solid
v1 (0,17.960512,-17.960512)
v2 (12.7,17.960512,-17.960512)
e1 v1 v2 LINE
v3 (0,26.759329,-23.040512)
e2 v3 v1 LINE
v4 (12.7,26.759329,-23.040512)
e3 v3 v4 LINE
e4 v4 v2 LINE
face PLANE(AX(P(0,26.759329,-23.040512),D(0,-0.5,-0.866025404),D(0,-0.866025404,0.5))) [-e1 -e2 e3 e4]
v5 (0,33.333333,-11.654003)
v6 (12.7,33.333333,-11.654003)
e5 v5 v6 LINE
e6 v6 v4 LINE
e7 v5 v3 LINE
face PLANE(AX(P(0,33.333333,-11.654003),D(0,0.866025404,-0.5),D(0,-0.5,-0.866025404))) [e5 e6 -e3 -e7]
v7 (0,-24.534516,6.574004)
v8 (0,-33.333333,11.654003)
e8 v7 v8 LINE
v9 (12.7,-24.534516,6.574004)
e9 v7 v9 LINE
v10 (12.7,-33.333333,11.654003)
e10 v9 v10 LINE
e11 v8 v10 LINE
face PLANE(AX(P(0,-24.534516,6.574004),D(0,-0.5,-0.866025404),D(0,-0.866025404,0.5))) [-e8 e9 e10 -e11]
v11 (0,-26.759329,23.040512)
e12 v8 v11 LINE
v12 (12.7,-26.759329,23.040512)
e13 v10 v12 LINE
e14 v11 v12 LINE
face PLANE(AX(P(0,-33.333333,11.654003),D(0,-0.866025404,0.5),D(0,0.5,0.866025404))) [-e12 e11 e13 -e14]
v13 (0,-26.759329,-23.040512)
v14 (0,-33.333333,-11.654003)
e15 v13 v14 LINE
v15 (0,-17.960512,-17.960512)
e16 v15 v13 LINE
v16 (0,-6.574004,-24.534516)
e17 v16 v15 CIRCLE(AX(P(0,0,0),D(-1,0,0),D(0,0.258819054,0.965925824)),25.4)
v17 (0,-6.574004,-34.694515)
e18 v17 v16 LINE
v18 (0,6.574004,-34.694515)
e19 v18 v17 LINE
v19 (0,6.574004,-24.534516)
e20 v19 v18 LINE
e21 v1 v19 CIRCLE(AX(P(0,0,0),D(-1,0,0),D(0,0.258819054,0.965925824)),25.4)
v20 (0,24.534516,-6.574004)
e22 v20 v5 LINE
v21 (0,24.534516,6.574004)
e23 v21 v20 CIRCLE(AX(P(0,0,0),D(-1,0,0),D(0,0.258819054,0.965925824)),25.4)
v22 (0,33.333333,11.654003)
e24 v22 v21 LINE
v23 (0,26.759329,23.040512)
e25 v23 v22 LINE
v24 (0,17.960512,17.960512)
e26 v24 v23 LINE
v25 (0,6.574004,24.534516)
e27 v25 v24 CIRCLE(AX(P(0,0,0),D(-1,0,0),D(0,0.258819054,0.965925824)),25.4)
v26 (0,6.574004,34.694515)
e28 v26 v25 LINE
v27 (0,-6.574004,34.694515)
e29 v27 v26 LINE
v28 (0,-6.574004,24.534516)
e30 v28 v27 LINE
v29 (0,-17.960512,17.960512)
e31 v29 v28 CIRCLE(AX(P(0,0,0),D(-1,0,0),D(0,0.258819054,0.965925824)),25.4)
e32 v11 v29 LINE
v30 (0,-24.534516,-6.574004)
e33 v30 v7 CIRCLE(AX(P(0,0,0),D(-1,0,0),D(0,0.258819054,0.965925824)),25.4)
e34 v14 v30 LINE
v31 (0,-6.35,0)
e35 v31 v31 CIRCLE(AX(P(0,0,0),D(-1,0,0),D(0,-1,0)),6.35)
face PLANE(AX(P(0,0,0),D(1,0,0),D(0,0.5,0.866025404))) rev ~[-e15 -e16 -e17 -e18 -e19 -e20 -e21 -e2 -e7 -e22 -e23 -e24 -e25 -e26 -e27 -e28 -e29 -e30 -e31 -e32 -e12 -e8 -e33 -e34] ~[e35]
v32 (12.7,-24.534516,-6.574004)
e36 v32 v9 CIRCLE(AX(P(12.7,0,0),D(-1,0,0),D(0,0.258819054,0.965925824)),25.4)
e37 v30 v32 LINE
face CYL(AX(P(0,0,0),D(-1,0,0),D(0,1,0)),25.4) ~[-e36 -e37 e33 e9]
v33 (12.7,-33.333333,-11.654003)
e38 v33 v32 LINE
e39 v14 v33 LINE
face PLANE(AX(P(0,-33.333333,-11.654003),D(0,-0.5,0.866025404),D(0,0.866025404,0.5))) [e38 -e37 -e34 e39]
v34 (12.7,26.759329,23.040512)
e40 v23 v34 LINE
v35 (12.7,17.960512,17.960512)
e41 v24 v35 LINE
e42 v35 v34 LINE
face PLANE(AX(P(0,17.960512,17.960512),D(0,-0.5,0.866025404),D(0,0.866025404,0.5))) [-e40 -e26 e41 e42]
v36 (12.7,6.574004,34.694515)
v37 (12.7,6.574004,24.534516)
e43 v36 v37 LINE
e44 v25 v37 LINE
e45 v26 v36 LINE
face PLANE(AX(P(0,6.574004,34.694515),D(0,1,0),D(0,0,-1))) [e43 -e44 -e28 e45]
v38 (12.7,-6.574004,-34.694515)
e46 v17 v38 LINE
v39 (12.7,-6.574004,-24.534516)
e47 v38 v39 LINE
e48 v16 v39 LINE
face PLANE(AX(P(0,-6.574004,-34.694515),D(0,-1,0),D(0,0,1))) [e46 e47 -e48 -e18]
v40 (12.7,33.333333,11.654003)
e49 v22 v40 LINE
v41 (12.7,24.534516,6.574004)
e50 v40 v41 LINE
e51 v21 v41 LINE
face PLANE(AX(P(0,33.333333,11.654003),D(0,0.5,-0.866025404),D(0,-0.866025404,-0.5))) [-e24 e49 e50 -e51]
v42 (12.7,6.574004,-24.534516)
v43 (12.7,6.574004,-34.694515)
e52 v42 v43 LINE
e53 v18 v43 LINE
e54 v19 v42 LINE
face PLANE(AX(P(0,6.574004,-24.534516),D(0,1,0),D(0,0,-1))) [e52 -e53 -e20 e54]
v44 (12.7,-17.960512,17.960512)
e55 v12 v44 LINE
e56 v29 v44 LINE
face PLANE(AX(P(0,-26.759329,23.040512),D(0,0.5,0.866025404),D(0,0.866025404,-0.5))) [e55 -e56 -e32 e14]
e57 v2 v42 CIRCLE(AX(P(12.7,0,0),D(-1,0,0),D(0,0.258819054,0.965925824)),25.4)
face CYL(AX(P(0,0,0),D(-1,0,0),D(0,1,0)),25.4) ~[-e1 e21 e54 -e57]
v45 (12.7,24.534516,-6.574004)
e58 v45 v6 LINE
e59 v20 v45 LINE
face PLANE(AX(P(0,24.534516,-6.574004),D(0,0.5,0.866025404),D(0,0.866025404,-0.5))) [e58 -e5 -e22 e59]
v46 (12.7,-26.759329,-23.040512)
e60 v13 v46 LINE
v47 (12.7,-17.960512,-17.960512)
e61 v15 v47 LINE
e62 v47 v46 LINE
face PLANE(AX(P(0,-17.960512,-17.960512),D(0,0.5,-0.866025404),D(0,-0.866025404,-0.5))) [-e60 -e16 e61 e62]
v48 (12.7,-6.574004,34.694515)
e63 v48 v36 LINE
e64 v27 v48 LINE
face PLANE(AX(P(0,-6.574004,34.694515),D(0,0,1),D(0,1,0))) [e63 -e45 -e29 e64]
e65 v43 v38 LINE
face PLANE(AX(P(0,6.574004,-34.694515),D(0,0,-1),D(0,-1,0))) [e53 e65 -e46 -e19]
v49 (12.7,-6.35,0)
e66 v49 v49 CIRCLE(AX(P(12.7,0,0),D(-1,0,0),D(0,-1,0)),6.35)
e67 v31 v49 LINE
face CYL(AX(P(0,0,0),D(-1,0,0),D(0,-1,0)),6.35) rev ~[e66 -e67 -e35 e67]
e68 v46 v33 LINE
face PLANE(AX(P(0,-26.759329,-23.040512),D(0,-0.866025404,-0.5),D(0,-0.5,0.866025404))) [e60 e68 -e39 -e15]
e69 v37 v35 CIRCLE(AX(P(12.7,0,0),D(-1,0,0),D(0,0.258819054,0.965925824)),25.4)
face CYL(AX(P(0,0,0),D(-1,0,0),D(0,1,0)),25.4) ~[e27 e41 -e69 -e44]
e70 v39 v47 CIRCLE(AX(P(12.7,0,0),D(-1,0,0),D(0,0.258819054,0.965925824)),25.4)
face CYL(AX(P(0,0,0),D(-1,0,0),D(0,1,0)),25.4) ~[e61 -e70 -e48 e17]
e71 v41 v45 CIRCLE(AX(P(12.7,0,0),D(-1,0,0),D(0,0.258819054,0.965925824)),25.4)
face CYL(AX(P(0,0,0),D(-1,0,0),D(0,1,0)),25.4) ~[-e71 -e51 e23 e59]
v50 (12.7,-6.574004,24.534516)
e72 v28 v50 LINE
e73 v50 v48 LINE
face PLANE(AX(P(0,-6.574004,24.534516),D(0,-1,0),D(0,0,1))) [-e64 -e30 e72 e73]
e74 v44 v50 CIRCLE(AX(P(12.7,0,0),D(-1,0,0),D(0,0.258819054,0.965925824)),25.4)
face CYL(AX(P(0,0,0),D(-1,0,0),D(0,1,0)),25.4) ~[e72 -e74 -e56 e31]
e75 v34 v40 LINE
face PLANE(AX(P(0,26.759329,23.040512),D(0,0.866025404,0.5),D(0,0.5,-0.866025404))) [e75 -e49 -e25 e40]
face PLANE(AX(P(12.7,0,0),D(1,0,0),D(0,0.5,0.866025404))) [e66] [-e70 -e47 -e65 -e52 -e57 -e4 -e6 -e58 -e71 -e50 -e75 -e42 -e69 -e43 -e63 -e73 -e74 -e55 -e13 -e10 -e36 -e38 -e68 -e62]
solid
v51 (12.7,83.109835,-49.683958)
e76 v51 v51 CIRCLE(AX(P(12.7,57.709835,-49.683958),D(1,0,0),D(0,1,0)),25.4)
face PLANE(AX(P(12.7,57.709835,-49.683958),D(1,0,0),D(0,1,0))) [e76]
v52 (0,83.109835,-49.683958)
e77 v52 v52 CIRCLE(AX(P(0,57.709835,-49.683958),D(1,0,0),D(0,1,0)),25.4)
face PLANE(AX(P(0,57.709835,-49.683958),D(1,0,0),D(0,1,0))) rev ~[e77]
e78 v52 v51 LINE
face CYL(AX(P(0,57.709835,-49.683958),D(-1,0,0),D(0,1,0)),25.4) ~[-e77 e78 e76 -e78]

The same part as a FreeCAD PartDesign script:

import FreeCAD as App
import Part
import Sketcher

V = App.Vector
Q = App.Units.Quantity


def add_polygon(sketch, points):
    """Adds a closed chain of lines whose ends are joined by coincident constraints."""
    first, n = sketch.GeometryCount, len(points)
    for a, b in zip(points, points[1:] + points[:1]):
        sketch.addGeometry(Part.LineSegment(App.Vector(*a, 0), App.Vector(*b, 0)), False)
    for i in range(n):
        sketch.addConstraint(Sketcher.Constraint("Coincident", first + i, 2, first + (i + 1) % n, 1))

doc = App.newDocument("Part")
params = doc.addObject("Spreadsheet::Sheet", "Params")
for row, (alias, value) in enumerate([
    ("sketch1_diameter", "2 in"),
    ("pad1_length", "0.5 in"),
    ("sketch2_length", "1 in"),
    ("sketch2_height", "0.4 in"),
    ("pad2_length", "0.5 in"),
    ("sketch3_diameter", "0.5 in"),
    ("pocket1_length", "1 in"),
    ("sketch4_diameter", "2 in"),
    ("pad3_length", "0.5 in"),
], start=1):
    params.set(f"A{row}", alias)
    params.set(f"B{row}", "=" + value)
    params.setAlias(f"B{row}", alias)

body = doc.addObject("PartDesign::Body", "Body")

# Sketch on YZ plane
sketch1 = body.newObject("Sketcher::SketchObject", "Sketch")
sketch1.AttachmentSupport = (doc.getObject("YZ_Plane"), [""])
sketch1.MapMode = "FlatFace"
sketch1.addGeometry(Part.Circle(V(0, 0, 0), V(0, 0, 1), 25), False)
sketch1.addConstraint([
    Sketcher.Constraint("Coincident", 0, 3, -1, 1),
    Sketcher.Constraint("Diameter", 0, Q("2 in")),
])
sketch1.setExpression("Constraints[1]", "Params.sketch1_diameter")
pad1 = body.newObject("PartDesign::Pad", "Pad")
pad1.Profile = sketch1
pad1.setExpression("Length", "Params.pad1_length")

# Sketch on YZ plane
sketch2 = body.newObject("Sketcher::SketchObject", "Sketch001")
sketch2.AttachmentSupport = (doc.getObject("YZ_Plane"), [""])
sketch2.MapMode = "FlatFace"
add_polygon(sketch2, [(7, 25), (0, 0), (-7, 25), (-7, 35), (7, 35)])  # lines 0-4
sketch2.addConstraint([
    Sketcher.Constraint("Vertical", 2),
    Sketcher.Constraint("Horizontal", 3),
    Sketcher.Constraint("Vertical", 4),
    Sketcher.Constraint("Coincident", 0, 2, -1, 1),
    Sketcher.Constraint("Symmetric", 1, 2, 4, 2, -2),
    Sketcher.Constraint("Distance", 0, Q("1 in")),
    Sketcher.Constraint("DistanceY", 2, 1, 2, 2, Q("0.4 in")),
    Sketcher.Constraint("Angle", 0, Q("-105.000001 deg")),
])
sketch2.setExpression("Constraints[10]", "Params.sketch2_length")
sketch2.setExpression("Constraints[11]", "Params.sketch2_height")
pad2 = body.newObject("PartDesign::Pad", "Pad001")
pad2.Profile = sketch2
pad2.setExpression("Length", "Params.pad2_length")
body2 = doc.addObject("PartDesign::Body", "Body001")
doc.recompute()

body2.BaseFeature = body
doc.recompute()

body3 = doc.addObject("PartDesign::Body", "Body002")
body3.BaseFeature = body
body3.Placement = App.Placement(V(0, 0, 0), App.Rotation(V(-1, 0, 0), 60))
boolean = body2.newObject("PartDesign::Boolean", "Boolean")
boolean.Type = "Fuse"
boolean.addObjects([body3])
doc.recompute()

body4 = doc.addObject("PartDesign::Body", "Body003")
body4.BaseFeature = body
body4.Placement = App.Placement(V(0, 0, 0), App.Rotation(V(-1, 0, 0), 120))
boolean2 = body2.newObject("PartDesign::Boolean", "Boolean001")
boolean2.Type = "Fuse"
boolean2.addObjects([body4])
doc.recompute()

body5 = doc.addObject("PartDesign::Body", "Body004")
body5.BaseFeature = body
body5.Placement = App.Placement(V(0, 0, 0), App.Rotation(V(-1, 0, 0), 180))
boolean3 = body2.newObject("PartDesign::Boolean", "Boolean002")
boolean3.Type = "Fuse"
boolean3.addObjects([body5])
doc.recompute()

body6 = doc.addObject("PartDesign::Body", "Body005")
body6.BaseFeature = body
body6.Placement = App.Placement(V(0, 0, 0), App.Rotation(V(-1, 0, 0), 240))
boolean4 = body2.newObject("PartDesign::Boolean", "Boolean003")
boolean4.Type = "Fuse"
boolean4.addObjects([body6])
doc.recompute()

body.Placement = App.Placement(V(0, 0, 0), App.Rotation(V(-1, 0, 0), 300))
boolean5 = body2.newObject("PartDesign::Boolean", "Boolean004")
boolean5.Type = "Fuse"
boolean5.addObjects([body])

# Sketch on YZ plane
sketch3 = body2.newObject("Sketcher::SketchObject", "Sketch002")
sketch3.AttachmentSupport = (doc.getObject("YZ_Plane001"), [""])
sketch3.MapMode = "FlatFace"
sketch3.addGeometry(Part.Circle(V(0, 0, 0), V(0, 0, 1), 6), False)
sketch3.addConstraint([
    Sketcher.Constraint("Coincident", 0, 3, -1, 1),
    Sketcher.Constraint("Diameter", 0, Q("0.5 in")),
])
sketch3.setExpression("Constraints[1]", "Params.sketch3_diameter")
pocket1 = body2.newObject("PartDesign::Pocket", "Pocket")
pocket1.Profile = sketch3
pocket1.setExpression("Length", "Params.pocket1_length")
pocket1.Reversed = True
body7 = doc.addObject("PartDesign::Body", "Body006")

# Sketch on YZ plane
sketch4 = body7.newObject("Sketcher::SketchObject", "Sketch003")
sketch4.AttachmentSupport = (doc.getObject("YZ_Plane006"), [""])
sketch4.MapMode = "FlatFace"
sketch4.addGeometry(Part.Circle(V(58, -50, 0), V(0, 0, 1), 25), False)
sketch4.addConstraint([
    Sketcher.Constraint("Diameter", 0, Q("2 in")),
    Sketcher.Constraint("DistanceX", -1, 1, 0, 3, Q("57.709835 mm")),
    Sketcher.Constraint("DistanceY", 0, 3, -1, 1, Q("49.683958 mm")),
])
sketch4.setExpression("Constraints[0]", "Params.sketch4_diameter")
pad3 = body7.newObject("PartDesign::Pad", "Pad002")
pad3.Profile = sketch4
pad3.setExpression("Length", "Params.pad3_length")

doc.recompute()
